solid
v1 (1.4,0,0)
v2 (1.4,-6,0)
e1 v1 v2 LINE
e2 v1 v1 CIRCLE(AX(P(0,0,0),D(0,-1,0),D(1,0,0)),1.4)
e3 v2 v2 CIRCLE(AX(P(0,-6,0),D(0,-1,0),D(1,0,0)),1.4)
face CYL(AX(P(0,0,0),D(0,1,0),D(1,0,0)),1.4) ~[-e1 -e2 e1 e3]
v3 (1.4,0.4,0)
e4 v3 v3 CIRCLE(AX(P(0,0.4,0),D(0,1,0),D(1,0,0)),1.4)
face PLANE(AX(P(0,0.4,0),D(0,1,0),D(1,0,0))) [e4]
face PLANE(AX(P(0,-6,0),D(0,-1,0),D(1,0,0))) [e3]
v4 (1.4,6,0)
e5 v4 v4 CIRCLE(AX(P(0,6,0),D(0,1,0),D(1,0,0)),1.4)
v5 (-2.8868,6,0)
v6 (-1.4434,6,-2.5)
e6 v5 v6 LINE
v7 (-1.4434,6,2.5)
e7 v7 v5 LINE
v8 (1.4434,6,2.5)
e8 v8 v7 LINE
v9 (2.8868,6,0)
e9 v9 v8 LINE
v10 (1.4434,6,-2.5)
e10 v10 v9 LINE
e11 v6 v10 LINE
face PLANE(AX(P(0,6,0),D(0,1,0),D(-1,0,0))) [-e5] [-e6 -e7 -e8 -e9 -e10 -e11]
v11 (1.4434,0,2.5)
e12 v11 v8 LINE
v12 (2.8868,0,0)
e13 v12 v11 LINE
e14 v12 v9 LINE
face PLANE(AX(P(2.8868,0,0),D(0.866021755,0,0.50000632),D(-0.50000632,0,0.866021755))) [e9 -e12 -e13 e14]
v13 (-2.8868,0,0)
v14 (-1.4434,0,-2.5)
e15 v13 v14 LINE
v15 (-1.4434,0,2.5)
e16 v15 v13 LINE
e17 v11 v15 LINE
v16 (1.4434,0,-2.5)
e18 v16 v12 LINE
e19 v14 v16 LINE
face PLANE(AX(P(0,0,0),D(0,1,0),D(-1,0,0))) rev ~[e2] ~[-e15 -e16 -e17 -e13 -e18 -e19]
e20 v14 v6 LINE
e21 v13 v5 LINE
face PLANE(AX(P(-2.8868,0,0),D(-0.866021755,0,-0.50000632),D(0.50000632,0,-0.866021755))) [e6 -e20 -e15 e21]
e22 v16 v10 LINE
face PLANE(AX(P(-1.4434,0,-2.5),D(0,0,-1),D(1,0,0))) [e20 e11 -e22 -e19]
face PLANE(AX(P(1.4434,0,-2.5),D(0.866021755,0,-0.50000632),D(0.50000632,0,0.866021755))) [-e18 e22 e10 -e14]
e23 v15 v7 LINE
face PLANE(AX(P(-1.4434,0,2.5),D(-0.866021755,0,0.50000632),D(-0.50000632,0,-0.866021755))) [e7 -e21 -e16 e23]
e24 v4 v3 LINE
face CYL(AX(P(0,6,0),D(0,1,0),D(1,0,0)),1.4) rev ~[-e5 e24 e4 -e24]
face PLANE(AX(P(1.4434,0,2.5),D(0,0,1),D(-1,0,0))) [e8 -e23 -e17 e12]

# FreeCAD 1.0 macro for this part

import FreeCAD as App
import Part
import Sketcher

V = App.Vector
Q = App.Units.Quantity


def add_polygon(sketch, points):
    """Adds a closed chain of lines whose ends are joined by coincident constraints."""
    first, n = sketch.GeometryCount, len(points)
    for a, b in zip(points, points[1:] + points[:1]):
        sketch.addGeometry(Part.LineSegment(App.Vector(*a, 0), App.Vector(*b, 0)), False)
    for i in range(n):
        sketch.addConstraint(Sketcher.Constraint("Coincident", first + i, 2, first + (i + 1) % n, 1))

doc = App.newDocument("Part")
body = doc.addObject("PartDesign::Body", "Body")

sketch1 = doc.addObject("Sketcher::SketchObject", "Sketch")
body.addObject(sketch1)
sketch1.AttachmentSupport = (doc.XZ_Plane, [""])
sketch1.MapMode = "FlatFace"
add_polygon(sketch1, [(-1.4, -2.5), (-2.9, 0), (-1.4, 2.5), (1.4, 2.5), (2.9, 0), (1.4, -2.5)])
sketch1.addConstraint([
    Sketcher.Constraint("Horizontal", 2),
    Sketcher.Constraint("Horizontal", 5),
    Sketcher.Constraint("Symmetric", 0, 2, 3, 2, -1, 1),
    Sketcher.Constraint("Symmetric", 1, 2, 4, 2, -1, 1),
    Sketcher.Constraint("PointOnObject", 0, 2, -1),
    Sketcher.Constraint("Parallel", 0, 3),
    Sketcher.Constraint("Vertical", 2, 2, 4, 2),
    Sketcher.Constraint("DistanceY", 4, 2, 2, 2, 5.0),
    Sketcher.Constraint("Angle", 0, Q("120.0004 deg")),
    Sketcher.Constraint("DistanceX", 2, 1, 2, 2, 2.8868),
])
pad1 = doc.addObject("PartDesign::Pad", "Pad")
body.addObject(pad1)
pad1.Profile = sketch1
pad1.Length = 6
pad1.Reversed = True

sketch2 = doc.addObject("Sketcher::SketchObject", "Sketch001")
body.addObject(sketch2)
sketch2.AttachmentSupport = (doc.XZ_Plane, [""])
sketch2.MapMode = "FlatFace"
sketch2.addGeometry(Part.Circle(V(0, 0, 0), V(0, 0, 1), 1.4), False)
sketch2.addConstraint([
    Sketcher.Constraint("Coincident", 0, 3, -1, 1),
    Sketcher.Constraint("Diameter", 0, 2.8),
])
pad2 = doc.addObject("PartDesign::Pad", "Pad001")
body.addObject(pad2)
pad2.Profile = sketch2
pad2.Length = 6

sketch3 = doc.addObject("Sketcher::SketchObject", "Sketch002")
body.addObject(sketch3)
sketch3.AttachmentSupport = (doc.XZ_Plane, [""])
sketch3.MapMode = "FlatFace"
sketch3.AttachmentOffset = App.Placement(V(0, 0, -6), App.Rotation())
sketch3.addGeometry(Part.Circle(V(0, 0, 0), V(0, 0, 1), 1.4), False)
sketch3.addConstraint([
    Sketcher.Constraint("Coincident", 0, 3, -1, 1),
    Sketcher.Constraint("Diameter", 0, 2.8),
])
pocket1 = doc.addObject("PartDesign::Pocket", "Pocket")
body.addObject(pocket1)
pocket1.Profile = sketch3
pocket1.Length = 5.6
pocket1.Reversed = True

doc.recompute()
